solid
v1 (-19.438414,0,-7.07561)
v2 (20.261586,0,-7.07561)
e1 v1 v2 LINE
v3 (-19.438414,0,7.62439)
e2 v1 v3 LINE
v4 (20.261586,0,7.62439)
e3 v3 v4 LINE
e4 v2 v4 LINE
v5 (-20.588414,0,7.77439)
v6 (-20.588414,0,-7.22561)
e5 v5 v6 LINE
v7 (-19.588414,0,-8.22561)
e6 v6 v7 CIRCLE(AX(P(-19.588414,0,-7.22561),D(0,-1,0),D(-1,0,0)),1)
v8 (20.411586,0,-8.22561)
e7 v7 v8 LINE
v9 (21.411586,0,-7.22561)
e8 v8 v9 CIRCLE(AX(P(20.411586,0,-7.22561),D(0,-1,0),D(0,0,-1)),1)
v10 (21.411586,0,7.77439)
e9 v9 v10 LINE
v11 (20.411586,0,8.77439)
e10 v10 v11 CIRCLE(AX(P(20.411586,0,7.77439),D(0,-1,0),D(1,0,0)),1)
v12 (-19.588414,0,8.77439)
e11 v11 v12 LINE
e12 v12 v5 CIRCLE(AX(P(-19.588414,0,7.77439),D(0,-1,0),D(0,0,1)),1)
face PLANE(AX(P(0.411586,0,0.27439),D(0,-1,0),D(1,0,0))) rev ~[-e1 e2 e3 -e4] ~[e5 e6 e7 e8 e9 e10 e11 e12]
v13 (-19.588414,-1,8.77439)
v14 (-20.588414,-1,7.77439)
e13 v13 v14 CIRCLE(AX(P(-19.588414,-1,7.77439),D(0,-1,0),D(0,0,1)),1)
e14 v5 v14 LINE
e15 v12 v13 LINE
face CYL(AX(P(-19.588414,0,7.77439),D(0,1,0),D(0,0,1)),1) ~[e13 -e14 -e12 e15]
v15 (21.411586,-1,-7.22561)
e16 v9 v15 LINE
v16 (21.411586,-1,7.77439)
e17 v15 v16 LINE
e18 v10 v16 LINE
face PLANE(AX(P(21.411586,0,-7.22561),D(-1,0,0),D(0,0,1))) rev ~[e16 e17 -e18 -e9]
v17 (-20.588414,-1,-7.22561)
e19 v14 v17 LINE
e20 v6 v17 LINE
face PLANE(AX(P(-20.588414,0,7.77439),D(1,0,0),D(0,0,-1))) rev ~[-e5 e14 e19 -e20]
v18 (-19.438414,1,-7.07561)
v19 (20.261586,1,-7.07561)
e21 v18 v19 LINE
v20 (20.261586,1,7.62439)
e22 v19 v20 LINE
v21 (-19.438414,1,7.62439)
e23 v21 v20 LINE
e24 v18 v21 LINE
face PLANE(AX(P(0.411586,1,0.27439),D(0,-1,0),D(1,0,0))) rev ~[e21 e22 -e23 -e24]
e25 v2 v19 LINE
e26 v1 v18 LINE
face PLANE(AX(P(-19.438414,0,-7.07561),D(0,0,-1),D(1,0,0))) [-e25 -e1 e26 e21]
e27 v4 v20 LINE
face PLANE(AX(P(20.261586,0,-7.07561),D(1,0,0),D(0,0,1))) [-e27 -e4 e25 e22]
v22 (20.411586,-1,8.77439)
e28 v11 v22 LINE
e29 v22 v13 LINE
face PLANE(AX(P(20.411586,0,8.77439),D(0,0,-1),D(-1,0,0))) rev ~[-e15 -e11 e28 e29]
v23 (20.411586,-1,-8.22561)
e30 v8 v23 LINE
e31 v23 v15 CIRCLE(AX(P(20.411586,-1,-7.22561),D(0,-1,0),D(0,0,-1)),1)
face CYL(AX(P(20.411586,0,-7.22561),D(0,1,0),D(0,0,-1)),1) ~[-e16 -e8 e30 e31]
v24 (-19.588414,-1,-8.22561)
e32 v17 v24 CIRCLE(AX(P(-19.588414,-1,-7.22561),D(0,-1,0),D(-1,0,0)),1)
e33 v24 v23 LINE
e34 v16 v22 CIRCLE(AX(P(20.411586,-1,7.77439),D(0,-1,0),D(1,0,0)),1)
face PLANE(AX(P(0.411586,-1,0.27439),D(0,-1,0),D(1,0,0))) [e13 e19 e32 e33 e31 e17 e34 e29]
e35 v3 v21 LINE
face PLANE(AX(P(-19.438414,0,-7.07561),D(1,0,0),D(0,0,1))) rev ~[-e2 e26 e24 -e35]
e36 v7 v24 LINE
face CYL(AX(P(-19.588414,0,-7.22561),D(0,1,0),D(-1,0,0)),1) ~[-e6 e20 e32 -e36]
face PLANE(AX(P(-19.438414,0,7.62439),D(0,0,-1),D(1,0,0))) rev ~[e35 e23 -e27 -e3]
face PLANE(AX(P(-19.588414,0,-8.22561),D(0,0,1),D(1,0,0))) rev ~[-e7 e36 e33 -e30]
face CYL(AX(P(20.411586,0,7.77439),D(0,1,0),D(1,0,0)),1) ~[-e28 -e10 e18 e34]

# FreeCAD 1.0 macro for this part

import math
import FreeCAD as App
import Part
import Sketcher
Q = App.Units.Quantity


def add_polygon(sketch, points):
    """Adds a closed chain of lines whose ends are joined by coincident constraints."""
    first, n = sketch.GeometryCount, len(points)
    for a, b in zip(points, points[1:] + points[:1]):
        sketch.addGeometry(Part.LineSegment(App.Vector(*a, 0), App.Vector(*b, 0)), False)
    for i in range(n):
        sketch.addConstraint(Sketcher.Constraint("Coincident", first + i, 2, first + (i + 1) % n, 1))

doc = App.newDocument("Part")
body = doc.addObject("PartDesign::Body", "Body")

# Sketch on XZ plane
sketch1 = doc.addObject("Sketcher::SketchObject", "Sketch")
body.addObject(sketch1)
sketch1.AttachmentSupport = (doc.XZ_Plane, [""])
sketch1.MapMode = "FlatFace"
sketch1.addGeometry([
    Part.LineSegment(App.Vector(-19.588414, -8.22561, 0), App.Vector(20.411586, -8.22561, 0)),  # 0
    Part.ArcOfCircle(Part.Circle(App.Vector(20.411586, -7.22561, 0), App.Vector(0, 0, 1), 1), math.radians(-90), math.radians(0)),  # 1
    Part.LineSegment(App.Vector(21.411586, -7.22561, 0), App.Vector(21.411586, 7.77439, 0)),  # 2
    Part.ArcOfCircle(Part.Circle(App.Vector(20.411586, 7.77439, 0), App.Vector(0, 0, 1), 1), math.radians(0), math.radians(90)),  # 3
    Part.LineSegment(App.Vector(20.411586, 8.77439, 0), App.Vector(-19.588414, 8.77439, 0)),  # 4
    Part.ArcOfCircle(Part.Circle(App.Vector(-19.588414, 7.77439, 0), App.Vector(0, 0, 1), 1), math.radians(90), math.radians(180)),  # 5
    Part.LineSegment(App.Vector(-20.588414, 7.77439, 0), App.Vector(-20.588414, -7.22561, 0)),  # 6
    Part.ArcOfCircle(Part.Circle(App.Vector(-19.588414, -7.22561, 0), App.Vector(0, 0, 1), 1), math.radians(180), math.radians(270)),  # 7
], False)
sketch1.addConstraint([
    Sketcher.Constraint("Tangent", 0, 2, 1, 1),
    Sketcher.Constraint("Tangent", 1, 2, 2, 1),
    Sketcher.Constraint("Tangent", 2, 2, 3, 1),
    Sketcher.Constraint("Tangent", 3, 2, 4, 1),
    Sketcher.Constraint("Tangent", 4, 2, 5, 1),
    Sketcher.Constraint("Tangent", 5, 2, 6, 1),
    Sketcher.Constraint("Tangent", 6, 2, 7, 1),
    Sketcher.Constraint("Tangent", 7, 2, 0, 1),
    Sketcher.Constraint("Horizontal", 0),
    Sketcher.Constraint("Vertical", 2),
    Sketcher.Constraint("Horizontal", 4),
    Sketcher.Constraint("Vertical", 6),
    Sketcher.Constraint("Equal", 1, 3),
    Sketcher.Constraint("Equal", 3, 5),
    Sketcher.Constraint("Equal", 5, 7),
    Sketcher.Constraint("Radius", 1, Q("1 mm")),
    Sketcher.Constraint("DistanceX", 0, 1, 0, 2, Q("40 mm")),
    Sketcher.Constraint("DistanceY", 2, 1, 2, 2, Q("15 mm")),
    Sketcher.Constraint("DistanceY", 1, 3, -1, 1, Q("7.22561 mm")),
    Sketcher.Constraint("DistanceX", -1, 1, 1, 3, Q("20.411586 mm")),
])
pad1 = doc.addObject("PartDesign::Pad", "Pad")
body.addObject(pad1)
pad1.Profile = sketch1
pad1.Length = 1

# Sketch on XZ plane
sketch2 = doc.addObject("Sketcher::SketchObject", "Sketch001")
body.addObject(sketch2)
sketch2.AttachmentSupport = (doc.XZ_Plane, [""])
sketch2.MapMode = "FlatFace"
add_polygon(sketch2, [(-19.438414, 7.62439), (-19.438414, -7.07561), (20.261586, -7.07561), (20.261586, 7.62439)])  # lines 0-3
sketch2.addConstraint([
    Sketcher.Constraint("Vertical", 0),
    Sketcher.Constraint("Horizontal", 1),
    Sketcher.Constraint("Vertical", 2),
    Sketcher.Constraint("Horizontal", 3),
    Sketcher.Constraint("DistanceX", 1, 1, 1, 2, Q("39.7 mm")),
    Sketcher.Constraint("DistanceY", 0, 2, 0, 1, Q("14.7 mm")),
    Sketcher.Constraint("DistanceY", 0, 2, -1, 1, Q("7.07561 mm")),
    Sketcher.Constraint("DistanceX", 0, 2, -1, 1, Q("19.438414 mm")),
])
pad2 = doc.addObject("PartDesign::Pad", "Pad001")
body.addObject(pad2)
pad2.Profile = sketch2
pad2.Length = 1
pad2.Reversed = True

doc.recompute()
